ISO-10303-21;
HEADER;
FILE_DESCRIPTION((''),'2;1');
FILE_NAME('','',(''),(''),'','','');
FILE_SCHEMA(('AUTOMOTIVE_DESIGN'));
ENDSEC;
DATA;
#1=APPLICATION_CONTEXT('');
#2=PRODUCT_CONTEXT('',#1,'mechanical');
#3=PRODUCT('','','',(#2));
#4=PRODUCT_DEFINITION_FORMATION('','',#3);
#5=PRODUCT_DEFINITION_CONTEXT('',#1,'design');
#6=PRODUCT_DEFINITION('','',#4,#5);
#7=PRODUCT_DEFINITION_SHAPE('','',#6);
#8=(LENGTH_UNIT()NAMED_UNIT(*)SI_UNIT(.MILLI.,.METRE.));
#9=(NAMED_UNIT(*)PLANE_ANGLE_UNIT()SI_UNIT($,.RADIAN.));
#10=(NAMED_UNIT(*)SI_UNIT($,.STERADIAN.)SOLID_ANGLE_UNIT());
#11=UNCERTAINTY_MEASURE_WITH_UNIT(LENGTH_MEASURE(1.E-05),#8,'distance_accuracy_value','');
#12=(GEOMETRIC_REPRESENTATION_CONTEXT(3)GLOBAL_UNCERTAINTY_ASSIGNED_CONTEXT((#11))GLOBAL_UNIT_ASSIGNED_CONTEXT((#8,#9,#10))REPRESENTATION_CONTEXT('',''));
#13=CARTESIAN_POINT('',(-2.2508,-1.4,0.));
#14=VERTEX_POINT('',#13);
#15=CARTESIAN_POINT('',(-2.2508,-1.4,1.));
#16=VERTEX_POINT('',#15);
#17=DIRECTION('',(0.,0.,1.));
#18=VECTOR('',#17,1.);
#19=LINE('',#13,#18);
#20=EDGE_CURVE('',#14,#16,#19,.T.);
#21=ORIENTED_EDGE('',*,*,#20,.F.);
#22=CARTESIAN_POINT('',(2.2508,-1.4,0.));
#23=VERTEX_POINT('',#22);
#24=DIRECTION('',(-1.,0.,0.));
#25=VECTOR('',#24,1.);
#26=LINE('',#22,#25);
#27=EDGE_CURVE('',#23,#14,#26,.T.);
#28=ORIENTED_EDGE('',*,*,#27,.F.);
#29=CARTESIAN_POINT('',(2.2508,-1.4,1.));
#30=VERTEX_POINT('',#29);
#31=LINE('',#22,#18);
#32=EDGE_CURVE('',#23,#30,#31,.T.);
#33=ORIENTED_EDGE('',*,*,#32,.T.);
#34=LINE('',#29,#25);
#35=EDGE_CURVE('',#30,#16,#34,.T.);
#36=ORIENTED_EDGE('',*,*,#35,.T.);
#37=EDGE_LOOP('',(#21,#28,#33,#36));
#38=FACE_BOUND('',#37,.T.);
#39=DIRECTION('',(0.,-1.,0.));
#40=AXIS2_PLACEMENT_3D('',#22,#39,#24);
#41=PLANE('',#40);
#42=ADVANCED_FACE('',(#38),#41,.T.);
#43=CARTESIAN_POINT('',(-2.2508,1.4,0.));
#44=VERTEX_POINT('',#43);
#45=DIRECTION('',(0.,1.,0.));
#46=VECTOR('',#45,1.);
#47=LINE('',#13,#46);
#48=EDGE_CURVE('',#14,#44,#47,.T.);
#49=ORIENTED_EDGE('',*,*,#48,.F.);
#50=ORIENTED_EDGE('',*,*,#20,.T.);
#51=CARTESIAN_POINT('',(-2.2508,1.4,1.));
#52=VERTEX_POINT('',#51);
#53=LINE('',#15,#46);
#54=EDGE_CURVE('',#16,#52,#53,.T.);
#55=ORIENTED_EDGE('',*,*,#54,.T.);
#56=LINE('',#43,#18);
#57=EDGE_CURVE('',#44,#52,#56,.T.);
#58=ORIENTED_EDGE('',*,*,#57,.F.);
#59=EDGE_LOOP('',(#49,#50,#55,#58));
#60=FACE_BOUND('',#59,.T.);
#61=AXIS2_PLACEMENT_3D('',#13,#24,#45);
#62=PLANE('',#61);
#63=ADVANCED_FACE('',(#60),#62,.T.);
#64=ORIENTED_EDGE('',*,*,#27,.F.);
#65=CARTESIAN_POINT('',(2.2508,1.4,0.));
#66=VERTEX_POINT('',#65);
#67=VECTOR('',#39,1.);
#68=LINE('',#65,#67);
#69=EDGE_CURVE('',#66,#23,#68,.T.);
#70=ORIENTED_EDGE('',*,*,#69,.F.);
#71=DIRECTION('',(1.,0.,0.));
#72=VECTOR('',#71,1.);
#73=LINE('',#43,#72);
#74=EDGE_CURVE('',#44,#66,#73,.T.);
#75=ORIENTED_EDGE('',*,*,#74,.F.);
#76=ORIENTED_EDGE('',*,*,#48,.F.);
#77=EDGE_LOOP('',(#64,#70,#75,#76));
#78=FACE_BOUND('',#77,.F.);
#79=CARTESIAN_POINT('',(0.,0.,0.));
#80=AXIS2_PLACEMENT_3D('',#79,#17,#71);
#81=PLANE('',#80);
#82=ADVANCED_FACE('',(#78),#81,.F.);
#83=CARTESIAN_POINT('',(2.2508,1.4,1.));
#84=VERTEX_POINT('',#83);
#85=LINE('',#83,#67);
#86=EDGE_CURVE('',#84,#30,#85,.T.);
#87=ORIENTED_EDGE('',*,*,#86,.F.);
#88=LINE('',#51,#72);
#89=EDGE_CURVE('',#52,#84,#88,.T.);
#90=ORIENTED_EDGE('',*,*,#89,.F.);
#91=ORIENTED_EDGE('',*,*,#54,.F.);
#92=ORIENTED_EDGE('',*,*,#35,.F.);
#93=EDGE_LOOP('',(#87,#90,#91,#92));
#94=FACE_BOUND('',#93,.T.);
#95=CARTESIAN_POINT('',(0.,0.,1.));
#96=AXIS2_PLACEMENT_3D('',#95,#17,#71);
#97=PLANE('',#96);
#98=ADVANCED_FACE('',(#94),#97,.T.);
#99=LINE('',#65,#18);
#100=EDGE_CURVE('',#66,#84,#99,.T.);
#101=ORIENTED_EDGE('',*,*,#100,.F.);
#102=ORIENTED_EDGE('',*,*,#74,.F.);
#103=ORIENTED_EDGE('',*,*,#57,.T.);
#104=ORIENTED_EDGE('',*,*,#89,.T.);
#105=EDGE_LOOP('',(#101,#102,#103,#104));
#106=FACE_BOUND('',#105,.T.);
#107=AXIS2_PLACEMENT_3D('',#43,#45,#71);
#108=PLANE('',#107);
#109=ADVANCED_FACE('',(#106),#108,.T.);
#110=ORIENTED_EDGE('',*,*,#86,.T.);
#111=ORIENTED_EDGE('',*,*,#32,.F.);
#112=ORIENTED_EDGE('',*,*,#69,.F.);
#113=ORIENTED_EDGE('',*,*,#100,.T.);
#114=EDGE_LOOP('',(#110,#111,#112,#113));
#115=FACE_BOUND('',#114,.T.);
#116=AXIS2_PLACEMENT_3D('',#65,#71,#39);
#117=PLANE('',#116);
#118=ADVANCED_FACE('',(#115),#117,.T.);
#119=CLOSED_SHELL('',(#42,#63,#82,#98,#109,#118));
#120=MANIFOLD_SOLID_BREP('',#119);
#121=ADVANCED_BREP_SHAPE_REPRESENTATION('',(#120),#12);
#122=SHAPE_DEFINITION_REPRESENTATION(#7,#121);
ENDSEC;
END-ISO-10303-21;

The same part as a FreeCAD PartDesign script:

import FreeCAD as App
import Part
import Sketcher
Q = App.Units.Quantity

doc = App.newDocument("Part")
params = doc.addObject("Spreadsheet::Sheet", "Params")
for row, (alias, value) in enumerate([
    ("sketch1_height", "2.8 mm"),
    ("pad1_length", "1 mm"),
], start=1):
    params.set(f"A{row}", alias)
    params.set(f"B{row}", "=" + value)
    params.setAlias(f"B{row}", alias)

body = doc.addObject("PartDesign::Body", "Body")

# Sketch on XY plane
sketch1 = doc.addObject("Sketcher::SketchObject", "Sketch")
body.addObject(sketch1)
sketch1.AttachmentSupport = (doc.XY_Plane, [""])
sketch1.MapMode = "FlatFace"
sketch1.addGeometry([
    Part.LineSegment(App.Vector(2.3, 1.4, 0), App.Vector(-2.3, 1.4, 0)),
    Part.LineSegment(App.Vector(-2.3, 1.4, 0), App.Vector(-2.3, -1.4, 0)),
    Part.LineSegment(App.Vector(-2.3, -1.4, 0), App.Vector(2.3, -1.4, 0)),
    Part.LineSegment(App.Vector(2.3, -1.4, 0), App.Vector(2.3, 1.4, 0)),
], False)
sketch1.addConstraint([
    Sketcher.Constraint("Coincident", 0, 2, 1, 1),
    Sketcher.Constraint("Coincident", 1, 2, 2, 1),
    Sketcher.Constraint("Coincident", 2, 2, 3, 1),
    Sketcher.Constraint("Coincident", 3, 2, 0, 1),
    Sketcher.Constraint("Horizontal", 0),
    Sketcher.Constraint("Vertical", 1),
    Sketcher.Constraint("Horizontal", 2),
    Sketcher.Constraint("Vertical", 3),
    Sketcher.Constraint("Symmetric", 0, 2, 2, 2, -1, 1),
    Sketcher.Constraint("DistanceY", 1, 2, 1, 1, Q("2.8 mm")),
    Sketcher.Constraint("DistanceX", 0, 2, 0, 1, Q("4.5016 mm")),
])
sketch1.setExpression("Constraints[9]", "Params.sketch1_height")
pad1 = doc.addObject("PartDesign::Pad", "Pad")
body.addObject(pad1)
pad1.Profile = sketch1
pad1.setExpression("Length", "Params.pad1_length")

doc.recompute()
